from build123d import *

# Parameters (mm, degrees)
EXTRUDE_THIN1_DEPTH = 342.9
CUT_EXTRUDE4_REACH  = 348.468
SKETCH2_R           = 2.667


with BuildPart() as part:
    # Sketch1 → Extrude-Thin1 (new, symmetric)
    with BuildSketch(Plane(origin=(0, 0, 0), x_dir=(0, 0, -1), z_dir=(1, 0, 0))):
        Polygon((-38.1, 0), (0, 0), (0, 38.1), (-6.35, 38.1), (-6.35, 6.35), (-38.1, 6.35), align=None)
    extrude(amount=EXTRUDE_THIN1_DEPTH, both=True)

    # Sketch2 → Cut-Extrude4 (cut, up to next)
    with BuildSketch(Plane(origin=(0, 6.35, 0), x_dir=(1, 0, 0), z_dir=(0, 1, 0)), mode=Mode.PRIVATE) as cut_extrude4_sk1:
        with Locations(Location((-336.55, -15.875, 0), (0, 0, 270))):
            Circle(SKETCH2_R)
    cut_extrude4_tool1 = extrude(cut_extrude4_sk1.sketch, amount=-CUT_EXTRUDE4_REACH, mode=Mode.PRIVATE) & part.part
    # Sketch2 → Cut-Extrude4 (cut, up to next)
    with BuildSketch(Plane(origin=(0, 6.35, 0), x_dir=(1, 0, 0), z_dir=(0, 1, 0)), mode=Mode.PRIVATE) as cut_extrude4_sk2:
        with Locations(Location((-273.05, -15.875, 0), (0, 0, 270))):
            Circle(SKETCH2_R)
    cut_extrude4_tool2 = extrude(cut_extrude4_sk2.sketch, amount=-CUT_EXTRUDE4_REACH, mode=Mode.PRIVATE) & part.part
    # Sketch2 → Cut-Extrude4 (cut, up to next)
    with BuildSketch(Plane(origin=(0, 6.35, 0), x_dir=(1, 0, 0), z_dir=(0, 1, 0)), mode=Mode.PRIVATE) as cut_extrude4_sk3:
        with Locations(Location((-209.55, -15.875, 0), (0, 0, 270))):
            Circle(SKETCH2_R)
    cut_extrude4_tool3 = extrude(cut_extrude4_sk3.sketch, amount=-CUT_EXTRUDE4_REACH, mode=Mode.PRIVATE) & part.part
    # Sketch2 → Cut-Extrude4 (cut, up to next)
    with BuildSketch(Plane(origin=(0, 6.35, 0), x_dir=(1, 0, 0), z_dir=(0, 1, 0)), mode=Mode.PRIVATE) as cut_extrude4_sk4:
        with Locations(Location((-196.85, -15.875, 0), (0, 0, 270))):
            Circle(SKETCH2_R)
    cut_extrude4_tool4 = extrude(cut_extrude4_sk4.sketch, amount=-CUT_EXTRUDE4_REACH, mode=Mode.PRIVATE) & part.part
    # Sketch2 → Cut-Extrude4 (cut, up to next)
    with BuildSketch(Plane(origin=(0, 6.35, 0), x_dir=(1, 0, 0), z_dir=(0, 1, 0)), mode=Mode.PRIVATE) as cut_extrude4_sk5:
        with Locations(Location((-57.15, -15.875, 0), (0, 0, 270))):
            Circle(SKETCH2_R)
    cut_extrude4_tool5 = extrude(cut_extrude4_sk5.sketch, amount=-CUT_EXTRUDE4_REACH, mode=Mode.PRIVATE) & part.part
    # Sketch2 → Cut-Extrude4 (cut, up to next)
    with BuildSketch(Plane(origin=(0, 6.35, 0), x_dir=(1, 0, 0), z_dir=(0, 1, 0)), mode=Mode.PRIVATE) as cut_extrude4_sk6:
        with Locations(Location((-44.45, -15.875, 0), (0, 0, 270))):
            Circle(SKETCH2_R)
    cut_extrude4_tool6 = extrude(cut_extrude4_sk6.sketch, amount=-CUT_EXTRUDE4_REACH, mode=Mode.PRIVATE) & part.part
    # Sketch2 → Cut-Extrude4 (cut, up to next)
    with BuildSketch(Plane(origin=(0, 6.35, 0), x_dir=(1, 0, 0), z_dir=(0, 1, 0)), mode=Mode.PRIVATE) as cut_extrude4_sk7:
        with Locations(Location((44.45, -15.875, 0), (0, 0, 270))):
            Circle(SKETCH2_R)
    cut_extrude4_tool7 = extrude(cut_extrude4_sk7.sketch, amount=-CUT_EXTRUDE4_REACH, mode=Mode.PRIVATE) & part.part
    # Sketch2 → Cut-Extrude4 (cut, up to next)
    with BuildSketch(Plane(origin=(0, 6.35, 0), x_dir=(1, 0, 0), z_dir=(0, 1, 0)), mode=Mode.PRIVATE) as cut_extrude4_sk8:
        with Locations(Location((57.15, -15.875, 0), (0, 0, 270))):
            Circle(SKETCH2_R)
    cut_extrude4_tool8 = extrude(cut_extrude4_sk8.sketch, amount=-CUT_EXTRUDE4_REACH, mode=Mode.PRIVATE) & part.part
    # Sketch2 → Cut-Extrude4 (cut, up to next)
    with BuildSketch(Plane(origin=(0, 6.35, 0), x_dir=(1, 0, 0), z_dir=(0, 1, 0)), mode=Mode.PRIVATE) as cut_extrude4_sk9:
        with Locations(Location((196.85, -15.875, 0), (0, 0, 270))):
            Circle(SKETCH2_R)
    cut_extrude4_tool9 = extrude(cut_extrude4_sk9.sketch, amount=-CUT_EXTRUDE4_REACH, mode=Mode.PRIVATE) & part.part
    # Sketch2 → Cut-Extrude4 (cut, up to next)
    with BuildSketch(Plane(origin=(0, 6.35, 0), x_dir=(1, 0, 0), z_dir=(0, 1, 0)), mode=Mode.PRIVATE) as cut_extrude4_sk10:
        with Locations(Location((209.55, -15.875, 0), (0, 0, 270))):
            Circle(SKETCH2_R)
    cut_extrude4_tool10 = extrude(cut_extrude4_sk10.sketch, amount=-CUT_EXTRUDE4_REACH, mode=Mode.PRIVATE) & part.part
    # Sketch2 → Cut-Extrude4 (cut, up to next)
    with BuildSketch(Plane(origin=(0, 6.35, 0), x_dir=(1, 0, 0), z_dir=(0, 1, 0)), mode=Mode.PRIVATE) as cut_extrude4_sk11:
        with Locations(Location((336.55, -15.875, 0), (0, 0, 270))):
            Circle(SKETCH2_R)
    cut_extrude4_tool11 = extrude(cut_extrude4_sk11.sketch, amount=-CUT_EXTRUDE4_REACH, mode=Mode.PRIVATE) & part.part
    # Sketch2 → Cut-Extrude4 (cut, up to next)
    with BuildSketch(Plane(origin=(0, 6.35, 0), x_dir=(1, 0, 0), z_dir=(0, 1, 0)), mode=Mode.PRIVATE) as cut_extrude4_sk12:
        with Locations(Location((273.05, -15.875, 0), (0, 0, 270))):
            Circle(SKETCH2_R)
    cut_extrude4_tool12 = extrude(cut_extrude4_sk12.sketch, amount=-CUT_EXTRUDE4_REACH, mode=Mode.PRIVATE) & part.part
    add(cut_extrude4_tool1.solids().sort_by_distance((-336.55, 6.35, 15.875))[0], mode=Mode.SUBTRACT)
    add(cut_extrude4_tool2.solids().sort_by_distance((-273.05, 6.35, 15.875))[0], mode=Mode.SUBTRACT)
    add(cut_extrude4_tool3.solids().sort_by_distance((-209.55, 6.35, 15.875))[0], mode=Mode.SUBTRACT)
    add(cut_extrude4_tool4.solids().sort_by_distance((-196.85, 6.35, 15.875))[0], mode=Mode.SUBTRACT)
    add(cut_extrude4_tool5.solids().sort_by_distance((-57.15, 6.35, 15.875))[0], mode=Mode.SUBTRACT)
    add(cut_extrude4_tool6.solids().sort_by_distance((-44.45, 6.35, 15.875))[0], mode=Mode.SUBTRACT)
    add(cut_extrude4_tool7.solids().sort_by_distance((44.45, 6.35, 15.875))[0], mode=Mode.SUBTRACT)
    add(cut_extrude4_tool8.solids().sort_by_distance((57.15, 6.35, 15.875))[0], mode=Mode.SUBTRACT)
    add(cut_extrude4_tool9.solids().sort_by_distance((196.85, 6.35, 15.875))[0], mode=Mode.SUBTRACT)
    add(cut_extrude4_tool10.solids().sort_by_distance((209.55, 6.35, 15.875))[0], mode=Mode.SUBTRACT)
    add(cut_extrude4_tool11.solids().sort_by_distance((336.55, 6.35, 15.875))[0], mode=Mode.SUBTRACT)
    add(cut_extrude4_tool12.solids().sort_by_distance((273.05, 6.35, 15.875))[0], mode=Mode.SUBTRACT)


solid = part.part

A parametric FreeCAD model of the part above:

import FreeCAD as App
import Part
import Sketcher
Q = App.Units.Quantity


def add_polygon(sketch, points):
    """Adds a closed chain of lines whose ends are joined by coincident constraints."""
    first, n = sketch.GeometryCount, len(points)
    for a, b in zip(points, points[1:] + points[:1]):
        sketch.addGeometry(Part.LineSegment(App.Vector(*a, 0), App.Vector(*b, 0)), False)
    for i in range(n):
        sketch.addConstraint(Sketcher.Constraint("Coincident", first + i, 2, first + (i + 1) % n, 1))

doc = App.newDocument("Part")
body = doc.addObject("PartDesign::Body", "Body")

# Sketch on YZ plane
sketch1 = doc.addObject("Sketcher::SketchObject", "Sketch")
body.addObject(sketch1)
sketch1.AttachmentSupport = (doc.YZ_Plane, [""])
sketch1.MapMode = "FlatFace"
add_polygon(sketch1, [(0, 38), (0, 0), (38, 0), (38, 6), (6, 6), (6, 38)])  # lines 0-5
sketch1.addConstraint(Sketcher.Constraint("Vertical", 0))
sketch1.addConstraint(Sketcher.Constraint("Horizontal", 1))
sketch1.addConstraint(Sketcher.Constraint("Vertical", 2))
sketch1.addConstraint(Sketcher.Constraint("Horizontal", 3))
sketch1.addConstraint(Sketcher.Constraint("Vertical", 4))
sketch1.addConstraint(Sketcher.Constraint("Horizontal", 5))
sketch1.addConstraint(Sketcher.Constraint("Coincident", 0, 2, -1, 1))
sketch1.addConstraint(Sketcher.Constraint("Equal", 1, 0))
sketch1.addConstraint(Sketcher.Constraint("Equal", 5, 2))
sketch1.addConstraint(Sketcher.Constraint("DistanceX", 1, 1, 1, 2, Q("1.5 in")))
sketch1.addConstraint(Sketcher.Constraint("DistanceX", 3, 2, 3, 1, Q("1.25 in")))
pad1 = doc.addObject("PartDesign::Pad", "Pad")
body.addObject(pad1)
pad1.Profile = sketch1
pad1.Length = Q("27 in")
pad1.Midplane = True

# Sketch on XZ plane
sketch2 = doc.addObject("Sketcher::SketchObject", "Sketch001")
body.addObject(sketch2)
sketch2.AttachmentSupport = (doc.XZ_Plane, [""])
sketch2.MapMode = "FlatFace"
sketch2.AttachmentOffset = App.Placement(App.Vector(0, 0, -0.25 * 25.4), App.Rotation())
sketch2.addGeometry(Part.Circle(App.Vector(-336.6, 15.9, 0), App.Vector(0, 0, 1), 2.7), False)
sketch2.addConstraint(Sketcher.Constraint("Diameter", 0, Q("0.21 in")))
sketch2.addConstraint(Sketcher.Constraint("DistanceX", 0, 3, -1, 1, Q("13.25 in")))
sketch2.addConstraint(Sketcher.Constraint("DistanceY", -1, 1, 0, 3, Q("0.625 in")))
pocket1 = doc.addObject("PartDesign::Pocket", "Pocket")
body.addObject(pocket1)
pocket1.Profile = sketch2
pocket1.Type = "UpToFirst"
pocket1.Reversed = True

# Sketch on XZ plane
sketch3 = doc.addObject("Sketcher::SketchObject", "Sketch002")
body.addObject(sketch3)
sketch3.AttachmentSupport = (doc.XZ_Plane, [""])
sketch3.MapMode = "FlatFace"
sketch3.AttachmentOffset = App.Placement(App.Vector(0, 0, -0.25 * 25.4), App.Rotation())
sketch3.addGeometry(Part.Circle(App.Vector(-273.1, 15.9, 0), App.Vector(0, 0, 1), 2.7), False)
sketch3.addConstraint(Sketcher.Constraint("Diameter", 0, Q("0.21 in")))
sketch3.addConstraint(Sketcher.Constraint("DistanceX", 0, 3, -1, 1, Q("10.75 in")))
sketch3.addConstraint(Sketcher.Constraint("DistanceY", -1, 1, 0, 3, Q("0.625 in")))
pocket2 = doc.addObject("PartDesign::Pocket", "Pocket001")
body.addObject(pocket2)
pocket2.Profile = sketch3
pocket2.Type = "UpToFirst"
pocket2.Reversed = True

# Sketch on XZ plane
sketch4 = doc.addObject("Sketcher::SketchObject", "Sketch003")
body.addObject(sketch4)
sketch4.AttachmentSupport = (doc.XZ_Plane, [""])
sketch4.MapMode = "FlatFace"
sketch4.AttachmentOffset = App.Placement(App.Vector(0, 0, -0.25 * 25.4), App.Rotation())
sketch4.addGeometry(Part.Circle(App.Vector(-209.6, 15.9, 0), App.Vector(0, 0, 1), 2.7), False)
sketch4.addConstraint(Sketcher.Constraint("Diameter", 0, Q("0.21 in")))
sketch4.addConstraint(Sketcher.Constraint("DistanceX", 0, 3, -1, 1, Q("8.25 in")))
sketch4.addConstraint(Sketcher.Constraint("DistanceY", -1, 1, 0, 3, Q("0.625 in")))
pocket3 = doc.addObject("PartDesign::Pocket", "Pocket002")
body.addObject(pocket3)
pocket3.Profile = sketch4
pocket3.Type = "UpToFirst"
pocket3.Reversed = True

# Sketch on XZ plane
sketch5 = doc.addObject("Sketcher::SketchObject", "Sketch004")
body.addObject(sketch5)
sketch5.AttachmentSupport = (doc.XZ_Plane, [""])
sketch5.MapMode = "FlatFace"
sketch5.AttachmentOffset = App.Placement(App.Vector(0, 0, -0.25 * 25.4), App.Rotation())
sketch5.addGeometry(Part.Circle(App.Vector(-196.8, 15.9, 0), App.Vector(0, 0, 1), 2.7), False)
sketch5.addConstraint(Sketcher.Constraint("Diameter", 0, Q("0.21 in")))
sketch5.addConstraint(Sketcher.Constraint("DistanceX", 0, 3, -1, 1, Q("7.75 in")))
sketch5.addConstraint(Sketcher.Constraint("DistanceY", -1, 1, 0, 3, Q("0.625 in")))
pocket4 = doc.addObject("PartDesign::Pocket", "Pocket003")
body.addObject(pocket4)
pocket4.Profile = sketch5
pocket4.Type = "UpToFirst"
pocket4.Reversed = True

# Sketch on XZ plane
sketch6 = doc.addObject("Sketcher::SketchObject", "Sketch005")
body.addObject(sketch6)
sketch6.AttachmentSupport = (doc.XZ_Plane, [""])
sketch6.MapMode = "FlatFace"
sketch6.AttachmentOffset = App.Placement(App.Vector(0, 0, -0.25 * 25.4), App.Rotation())
sketch6.addGeometry(Part.Circle(App.Vector(-57.1, 15.9, 0), App.Vector(0, 0, 1), 2.7), False)
sketch6.addConstraint(Sketcher.Constraint("Diameter", 0, Q("0.21 in")))
sketch6.addConstraint(Sketcher.Constraint("DistanceX", 0, 3, -1, 1, Q("2.25 in")))
sketch6.addConstraint(Sketcher.Constraint("DistanceY", -1, 1, 0, 3, Q("0.625 in")))
pocket5 = doc.addObject("PartDesign::Pocket", "Pocket004")
body.addObject(pocket5)
pocket5.Profile = sketch6
pocket5.Type = "UpToFirst"
pocket5.Reversed = True

# Sketch on XZ plane
sketch7 = doc.addObject("Sketcher::SketchObject", "Sketch006")
body.addObject(sketch7)
sketch7.AttachmentSupport = (doc.XZ_Plane, [""])
sketch7.MapMode = "FlatFace"
sketch7.AttachmentOffset = App.Placement(App.Vector(0, 0, -0.25 * 25.4), App.Rotation())
sketch7.addGeometry(Part.Circle(App.Vector(-44.5, 15.9, 0), App.Vector(0, 0, 1), 2.7), False)
sketch7.addConstraint(Sketcher.Constraint("Diameter", 0, Q("0.21 in")))
sketch7.addConstraint(Sketcher.Constraint("DistanceX", 0, 3, -1, 1, Q("1.75 in")))
sketch7.addConstraint(Sketcher.Constraint("DistanceY", -1, 1, 0, 3, Q("0.625 in")))
pocket6 = doc.addObject("PartDesign::Pocket", "Pocket005")
body.addObject(pocket6)
pocket6.Profile = sketch7
pocket6.Type = "UpToFirst"
pocket6.Reversed = True

# Sketch on XZ plane
sketch8 = doc.addObject("Sketcher::SketchObject", "Sketch007")
body.addObject(sketch8)
sketch8.AttachmentSupport = (doc.XZ_Plane, [""])
sketch8.MapMode = "FlatFace"
sketch8.AttachmentOffset = App.Placement(App.Vector(0, 0, -0.25 * 25.4), App.Rotation())
sketch8.addGeometry(Part.Circle(App.Vector(44.5, 15.9, 0), App.Vector(0, 0, 1), 2.7), False)
sketch8.addConstraint(Sketcher.Constraint("Diameter", 0, Q("0.21 in")))
sketch8.addConstraint(Sketcher.Constraint("DistanceX", -1, 1, 0, 3, Q("1.75 in")))
sketch8.addConstraint(Sketcher.Constraint("DistanceY", -1, 1, 0, 3, Q("0.625 in")))
pocket7 = doc.addObject("PartDesign::Pocket", "Pocket006")
body.addObject(pocket7)
pocket7.Profile = sketch8
pocket7.Type = "UpToFirst"
pocket7.Reversed = True

# Sketch on XZ plane
sketch9 = doc.addObject("Sketcher::SketchObject", "Sketch008")
body.addObject(sketch9)
sketch9.AttachmentSupport = (doc.XZ_Plane, [""])
sketch9.MapMode = "FlatFace"
sketch9.AttachmentOffset = App.Placement(App.Vector(0, 0, -0.25 * 25.4), App.Rotation())
sketch9.addGeometry(Part.Circle(App.Vector(57.1, 15.9, 0), App.Vector(0, 0, 1), 2.7), False)
sketch9.addConstraint(Sketcher.Constraint("Diameter", 0, Q("0.21 in")))
sketch9.addConstraint(Sketcher.Constraint("DistanceX", -1, 1, 0, 3, Q("2.25 in")))
sketch9.addConstraint(Sketcher.Constraint("DistanceY", -1, 1, 0, 3, Q("0.625 in")))
pocket8 = doc.addObject("PartDesign::Pocket", "Pocket007")
body.addObject(pocket8)
pocket8.Profile = sketch9
pocket8.Type = "UpToFirst"
pocket8.Reversed = True

# Sketch on XZ plane
sketch10 = doc.addObject("Sketcher::SketchObject", "Sketch009")
body.addObject(sketch10)
sketch10.AttachmentSupport = (doc.XZ_Plane, [""])
sketch10.MapMode = "FlatFace"
sketch10.AttachmentOffset = App.Placement(App.Vector(0, 0, -0.25 * 25.4), App.Rotation())
sketch10.addGeometry(Part.Circle(App.Vector(196.8, 15.9, 0), App.Vector(0, 0, 1), 2.7), False)
sketch10.addConstraint(Sketcher.Constraint("Diameter", 0, Q("0.21 in")))
sketch10.addConstraint(Sketcher.Constraint("DistanceX", -1, 1, 0, 3, Q("7.75 in")))
sketch10.addConstraint(Sketcher.Constraint("DistanceY", -1, 1, 0, 3, Q("0.625 in")))
pocket9 = doc.addObject("PartDesign::Pocket", "Pocket008")
body.addObject(pocket9)
pocket9.Profile = sketch10
pocket9.Type = "UpToFirst"
pocket9.Reversed = True

# Sketch on XZ plane
sketch11 = doc.addObject("Sketcher::SketchObject", "Sketch010")
body.addObject(sketch11)
sketch11.AttachmentSupport = (doc.XZ_Plane, [""])
sketch11.MapMode = "FlatFace"
sketch11.AttachmentOffset = App.Placement(App.Vector(0, 0, -0.25 * 25.4), App.Rotation())
sketch11.addGeometry(Part.Circle(App.Vector(209.6, 15.9, 0), App.Vector(0, 0, 1), 2.7), False)
sketch11.addConstraint(Sketcher.Constraint("Diameter", 0, Q("0.21 in")))
sketch11.addConstraint(Sketcher.Constraint("DistanceX", -1, 1, 0, 3, Q("8.25 in")))
sketch11.addConstraint(Sketcher.Constraint("DistanceY", -1, 1, 0, 3, Q("0.625 in")))
pocket10 = doc.addObject("PartDesign::Pocket", "Pocket009")
body.addObject(pocket10)
pocket10.Profile = sketch11
pocket10.Type = "UpToFirst"
pocket10.Reversed = True

# Sketch on XZ plane
sketch12 = doc.addObject("Sketcher::SketchObject", "Sketch011")
body.addObject(sketch12)
sketch12.AttachmentSupport = (doc.XZ_Plane, [""])
sketch12.MapMode = "FlatFace"
sketch12.AttachmentOffset = App.Placement(App.Vector(0, 0, -0.25 * 25.4), App.Rotation())
sketch12.addGeometry(Part.Circle(App.Vector(336.6, 15.9, 0), App.Vector(0, 0, 1), 2.7), False)
sketch12.addConstraint(Sketcher.Constraint("Diameter", 0, Q("0.21 in")))
sketch12.addConstraint(Sketcher.Constraint("DistanceX", -1, 1, 0, 3, Q("13.25 in")))
sketch12.addConstraint(Sketcher.Constraint("DistanceY", -1, 1, 0, 3, Q("0.625 in")))
pocket11 = doc.addObject("PartDesign::Pocket", "Pocket010")
body.addObject(pocket11)
pocket11.Profile = sketch12
pocket11.Type = "UpToFirst"
pocket11.Reversed = True

# Sketch on XZ plane
sketch13 = doc.addObject("Sketcher::SketchObject", "Sketch012")
body.addObject(sketch13)
sketch13.AttachmentSupport = (doc.XZ_Plane, [""])
sketch13.MapMode = "FlatFace"
sketch13.AttachmentOffset = App.Placement(App.Vector(0, 0, -0.25 * 25.4), App.Rotation())
sketch13.addGeometry(Part.Circle(App.Vector(273.1, 15.9, 0), App.Vector(0, 0, 1), 2.7), False)
sketch13.addConstraint(Sketcher.Constraint("Diameter", 0, Q("0.21 in")))
sketch13.addConstraint(Sketcher.Constraint("DistanceX", -1, 1, 0, 3, Q("10.75 in")))
sketch13.addConstraint(Sketcher.Constraint("DistanceY", -1, 1, 0, 3, Q("0.625 in")))
pocket12 = doc.addObject("PartDesign::Pocket", "Pocket011")
body.addObject(pocket12)
pocket12.Profile = sketch13
pocket12.Type = "UpToFirst"
pocket12.Reversed = True

doc.recompute()
